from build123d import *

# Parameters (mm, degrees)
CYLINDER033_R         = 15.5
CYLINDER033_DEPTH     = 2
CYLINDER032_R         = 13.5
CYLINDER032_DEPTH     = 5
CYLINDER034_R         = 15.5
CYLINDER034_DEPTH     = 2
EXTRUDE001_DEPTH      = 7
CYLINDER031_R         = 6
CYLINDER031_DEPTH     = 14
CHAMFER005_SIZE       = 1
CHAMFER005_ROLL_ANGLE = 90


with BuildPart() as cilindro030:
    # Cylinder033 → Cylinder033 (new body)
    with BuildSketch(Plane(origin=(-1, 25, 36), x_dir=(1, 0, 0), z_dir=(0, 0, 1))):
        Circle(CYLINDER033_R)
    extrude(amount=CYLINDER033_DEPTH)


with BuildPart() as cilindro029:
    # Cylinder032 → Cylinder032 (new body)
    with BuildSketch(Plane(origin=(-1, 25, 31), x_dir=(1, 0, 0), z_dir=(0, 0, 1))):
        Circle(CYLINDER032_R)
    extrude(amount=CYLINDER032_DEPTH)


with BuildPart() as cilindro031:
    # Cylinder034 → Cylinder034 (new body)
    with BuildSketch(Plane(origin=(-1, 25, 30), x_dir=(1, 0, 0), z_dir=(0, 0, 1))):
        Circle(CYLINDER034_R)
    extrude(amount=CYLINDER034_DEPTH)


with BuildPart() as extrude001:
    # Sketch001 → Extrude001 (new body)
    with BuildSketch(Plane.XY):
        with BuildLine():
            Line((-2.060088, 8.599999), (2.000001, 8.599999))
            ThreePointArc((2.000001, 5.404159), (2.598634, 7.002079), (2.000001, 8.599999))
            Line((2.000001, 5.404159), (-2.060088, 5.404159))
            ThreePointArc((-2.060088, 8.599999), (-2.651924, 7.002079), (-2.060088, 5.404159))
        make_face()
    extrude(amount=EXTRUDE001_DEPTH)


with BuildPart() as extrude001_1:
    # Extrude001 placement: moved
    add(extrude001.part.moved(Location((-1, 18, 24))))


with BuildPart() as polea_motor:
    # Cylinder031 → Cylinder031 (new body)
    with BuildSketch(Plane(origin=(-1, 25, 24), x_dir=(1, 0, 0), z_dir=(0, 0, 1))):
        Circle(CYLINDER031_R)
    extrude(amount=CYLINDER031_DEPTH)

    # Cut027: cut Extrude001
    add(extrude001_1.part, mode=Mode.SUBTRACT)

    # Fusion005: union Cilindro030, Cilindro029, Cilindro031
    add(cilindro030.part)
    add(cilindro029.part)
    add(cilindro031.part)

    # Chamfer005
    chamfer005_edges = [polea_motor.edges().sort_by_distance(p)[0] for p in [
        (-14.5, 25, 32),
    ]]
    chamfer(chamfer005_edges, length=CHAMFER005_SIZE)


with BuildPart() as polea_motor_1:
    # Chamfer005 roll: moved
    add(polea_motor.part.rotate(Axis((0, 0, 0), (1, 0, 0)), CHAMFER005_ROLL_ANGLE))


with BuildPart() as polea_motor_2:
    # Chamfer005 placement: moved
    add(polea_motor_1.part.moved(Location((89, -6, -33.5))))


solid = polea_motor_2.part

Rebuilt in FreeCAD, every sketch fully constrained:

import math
import FreeCAD as App
import Part
import Sketcher
from FreeCAD import Vector


def edges_at(feature, points):
    """Names of the edges that pass closest to the given points."""
    edges = feature.Shape.Edges
    near = lambda p: min(range(len(edges)), key=lambda i: edges[i].distToShape(Part.Vertex(*p))[0])
    return sorted({f"Edge{near(p) + 1}" for p in points})

doc = App.newDocument("Part")
body = doc.addObject("PartDesign::Body", "Body")

sketch1 = body.newObject("Sketcher::SketchObject", "Sketch")
sketch1.AttachmentSupport = (doc.getObject("XY_Plane"), [""])
sketch1.MapMode = "FlatFace"
sketch1.AttachmentOffset = App.Placement(Vector(0, 0, 36), App.Rotation())
sketch1.addGeometry(Part.Circle(Vector(-1, 25, 0), Vector(0, 0, 1), 15.5), False)
sketch1.addConstraint(Sketcher.Constraint("Diameter", 0, 31.0))
sketch1.addConstraint(Sketcher.Constraint("DistanceX", 0, 3, -1, 1, 1.0))
sketch1.addConstraint(Sketcher.Constraint("DistanceY", -1, 1, 0, 3, 25.0))
pad1 = body.newObject("PartDesign::Pad", "Pad")
pad1.Profile = sketch1
pad1.Length = 2
body2 = doc.addObject("PartDesign::Body", "Body001")

sketch2 = body2.newObject("Sketcher::SketchObject", "Sketch001")
sketch2.AttachmentSupport = (doc.getObject("XY_Plane001"), [""])
sketch2.MapMode = "FlatFace"
sketch2.AttachmentOffset = App.Placement(Vector(0, 0, 31), App.Rotation())
sketch2.addGeometry(Part.Circle(Vector(-1, 25, 0), Vector(0, 0, 1), 13.5), False)
sketch2.addConstraint(Sketcher.Constraint("Diameter", 0, 27.0))
sketch2.addConstraint(Sketcher.Constraint("DistanceX", 0, 3, -1, 1, 1.0))
sketch2.addConstraint(Sketcher.Constraint("DistanceY", -1, 1, 0, 3, 25.0))
pad2 = body2.newObject("PartDesign::Pad", "Pad001")
pad2.Profile = sketch2
pad2.Length = 5
body3 = doc.addObject("PartDesign::Body", "Body002")

sketch3 = body3.newObject("Sketcher::SketchObject", "Sketch002")
sketch3.AttachmentSupport = (doc.getObject("XY_Plane002"), [""])
sketch3.MapMode = "FlatFace"
sketch3.AttachmentOffset = App.Placement(Vector(0, 0, 30), App.Rotation())
sketch3.addGeometry(Part.Circle(Vector(-1, 25, 0), Vector(0, 0, 1), 15.5), False)
sketch3.addConstraint(Sketcher.Constraint("Diameter", 0, 31.0))
sketch3.addConstraint(Sketcher.Constraint("DistanceX", 0, 3, -1, 1, 1.0))
sketch3.addConstraint(Sketcher.Constraint("DistanceY", -1, 1, 0, 3, 25.0))
pad3 = body3.newObject("PartDesign::Pad", "Pad002")
pad3.Profile = sketch3
pad3.Length = 2
body4 = doc.addObject("PartDesign::Body", "Body003")

sketch4 = body4.newObject("Sketcher::SketchObject", "Sketch003")
sketch4.AttachmentSupport = (doc.getObject("XY_Plane003"), [""])
sketch4.MapMode = "FlatFace"
sketch4.addGeometry(Part.LineSegment(Vector(2.000001, 8.599999, 0), Vector(-2.060088, 8.599999, 0)), False)
sketch4.addGeometry(Part.ArcOfCircle(Part.Circle(Vector(-0.198864, 7.002079, 0), Vector(0, 0, 1), 2.45306), math.radians(139.352857), math.radians(220.647143)), False)
sketch4.addGeometry(Part.LineSegment(Vector(-2.060088, 5.404159, 0), Vector(2.000001, 5.404159, 0)), False)
sketch4.addGeometry(Part.ArcOfCircle(Part.Circle(Vector(0.166668, 7.002079, 0), Vector(0, 0, 1), 2.431966), math.radians(-41.07518), math.radians(41.07518)), False)
sketch4.addConstraint(Sketcher.Constraint("Coincident", 0, 2, 1, 1))
sketch4.addConstraint(Sketcher.Constraint("Coincident", 1, 2, 2, 1))
sketch4.addConstraint(Sketcher.Constraint("Coincident", 2, 2, 3, 1))
sketch4.addConstraint(Sketcher.Constraint("Coincident", 3, 2, 0, 1))
sketch4.addConstraint(Sketcher.Constraint("Horizontal", 0))
sketch4.addConstraint(Sketcher.Constraint("Horizontal", 2))
sketch4.addConstraint(Sketcher.Constraint("Horizontal", 1, 3, 3, 3))
sketch4.addConstraint(Sketcher.Constraint("Vertical", 0, 2, 1, 2))
sketch4.addConstraint(Sketcher.Constraint("DistanceX", -1, 1, 2, 2, 2.000001))
sketch4.addConstraint(Sketcher.Constraint("DistanceY", -1, 1, 0, 2, 8.599999))
sketch4.addConstraint(Sketcher.Constraint("Radius", 1, 2.45306))
sketch4.addConstraint(Sketcher.Constraint("Radius", 3, 2.431966))
sketch4.addConstraint(Sketcher.Constraint("DistanceX", 0, 2, 0, 1, 4.060089))
sketch4.addConstraint(Sketcher.Constraint("DistanceY", -1, 1, 1, 3, 7.002079))
pad4 = body4.newObject("PartDesign::Pad", "Pad003")
pad4.Profile = sketch4
pad4.Length = 7
body5 = doc.addObject("PartDesign::Body", "Body004")
doc.recompute()

body4.Placement = App.Placement(Vector(-1, 18, 24), App.Rotation(Vector(0, 0, 1), 0))
boolean = body5.newObject("PartDesign::Boolean", "Boolean")
boolean.Type = "Fuse"
boolean.addObjects([body4])
body6 = doc.addObject("PartDesign::Body", "Body005")

sketch5 = body6.newObject("Sketcher::SketchObject", "Sketch004")
sketch5.AttachmentSupport = (doc.getObject("XY_Plane005"), [""])
sketch5.MapMode = "FlatFace"
sketch5.AttachmentOffset = App.Placement(Vector(0, 0, 24), App.Rotation())
sketch5.addGeometry(Part.Circle(Vector(-1, 25, 0), Vector(0, 0, 1), 6), False)
sketch5.addConstraint(Sketcher.Constraint("Diameter", 0, 12.0))
sketch5.addConstraint(Sketcher.Constraint("DistanceX", 0, 3, -1, 1, 1.0))
sketch5.addConstraint(Sketcher.Constraint("DistanceY", -1, 1, 0, 3, 25.0))
pad5 = body6.newObject("PartDesign::Pad", "Pad004")
pad5.Profile = sketch5
pad5.Length = 14
doc.recompute()

boolean2 = body6.newObject("PartDesign::Boolean", "Boolean001")
boolean2.Type = "Cut"
boolean2.addObjects([body5])
doc.recompute()

boolean3 = body6.newObject("PartDesign::Boolean", "Boolean002")
boolean3.Type = "Fuse"
boolean3.addObjects([body])
doc.recompute()

boolean4 = body6.newObject("PartDesign::Boolean", "Boolean003")
boolean4.Type = "Fuse"
boolean4.addObjects([body2])
doc.recompute()

boolean5 = body6.newObject("PartDesign::Boolean", "Boolean004")
boolean5.Type = "Fuse"
boolean5.addObjects([body3])
doc.recompute()

chamfer = body6.newObject("PartDesign::Chamfer", "Chamfer")
chamfer.Base = (boolean5, edges_at(boolean5, [(-14.5, 25, 32)]))
chamfer.Size = 1
body7 = doc.addObject("PartDesign::Body", "Body006")
doc.recompute()

body6.Placement = App.Placement(Vector(0, 0, 0), App.Rotation(Vector(1, 0, 0), 90))
boolean6 = body7.newObject("PartDesign::Boolean", "Boolean005")
boolean6.Type = "Fuse"
boolean6.addObjects([body6])
body8 = doc.addObject("PartDesign::Body", "Body007")
doc.recompute()

body7.Placement = App.Placement(Vector(89, -6, -33.5), App.Rotation(Vector(0, 0, 1), 0))
boolean7 = body8.newObject("PartDesign::Boolean", "Boolean006")
boolean7.Type = "Fuse"
boolean7.addObjects([body7])

doc.recompute()
